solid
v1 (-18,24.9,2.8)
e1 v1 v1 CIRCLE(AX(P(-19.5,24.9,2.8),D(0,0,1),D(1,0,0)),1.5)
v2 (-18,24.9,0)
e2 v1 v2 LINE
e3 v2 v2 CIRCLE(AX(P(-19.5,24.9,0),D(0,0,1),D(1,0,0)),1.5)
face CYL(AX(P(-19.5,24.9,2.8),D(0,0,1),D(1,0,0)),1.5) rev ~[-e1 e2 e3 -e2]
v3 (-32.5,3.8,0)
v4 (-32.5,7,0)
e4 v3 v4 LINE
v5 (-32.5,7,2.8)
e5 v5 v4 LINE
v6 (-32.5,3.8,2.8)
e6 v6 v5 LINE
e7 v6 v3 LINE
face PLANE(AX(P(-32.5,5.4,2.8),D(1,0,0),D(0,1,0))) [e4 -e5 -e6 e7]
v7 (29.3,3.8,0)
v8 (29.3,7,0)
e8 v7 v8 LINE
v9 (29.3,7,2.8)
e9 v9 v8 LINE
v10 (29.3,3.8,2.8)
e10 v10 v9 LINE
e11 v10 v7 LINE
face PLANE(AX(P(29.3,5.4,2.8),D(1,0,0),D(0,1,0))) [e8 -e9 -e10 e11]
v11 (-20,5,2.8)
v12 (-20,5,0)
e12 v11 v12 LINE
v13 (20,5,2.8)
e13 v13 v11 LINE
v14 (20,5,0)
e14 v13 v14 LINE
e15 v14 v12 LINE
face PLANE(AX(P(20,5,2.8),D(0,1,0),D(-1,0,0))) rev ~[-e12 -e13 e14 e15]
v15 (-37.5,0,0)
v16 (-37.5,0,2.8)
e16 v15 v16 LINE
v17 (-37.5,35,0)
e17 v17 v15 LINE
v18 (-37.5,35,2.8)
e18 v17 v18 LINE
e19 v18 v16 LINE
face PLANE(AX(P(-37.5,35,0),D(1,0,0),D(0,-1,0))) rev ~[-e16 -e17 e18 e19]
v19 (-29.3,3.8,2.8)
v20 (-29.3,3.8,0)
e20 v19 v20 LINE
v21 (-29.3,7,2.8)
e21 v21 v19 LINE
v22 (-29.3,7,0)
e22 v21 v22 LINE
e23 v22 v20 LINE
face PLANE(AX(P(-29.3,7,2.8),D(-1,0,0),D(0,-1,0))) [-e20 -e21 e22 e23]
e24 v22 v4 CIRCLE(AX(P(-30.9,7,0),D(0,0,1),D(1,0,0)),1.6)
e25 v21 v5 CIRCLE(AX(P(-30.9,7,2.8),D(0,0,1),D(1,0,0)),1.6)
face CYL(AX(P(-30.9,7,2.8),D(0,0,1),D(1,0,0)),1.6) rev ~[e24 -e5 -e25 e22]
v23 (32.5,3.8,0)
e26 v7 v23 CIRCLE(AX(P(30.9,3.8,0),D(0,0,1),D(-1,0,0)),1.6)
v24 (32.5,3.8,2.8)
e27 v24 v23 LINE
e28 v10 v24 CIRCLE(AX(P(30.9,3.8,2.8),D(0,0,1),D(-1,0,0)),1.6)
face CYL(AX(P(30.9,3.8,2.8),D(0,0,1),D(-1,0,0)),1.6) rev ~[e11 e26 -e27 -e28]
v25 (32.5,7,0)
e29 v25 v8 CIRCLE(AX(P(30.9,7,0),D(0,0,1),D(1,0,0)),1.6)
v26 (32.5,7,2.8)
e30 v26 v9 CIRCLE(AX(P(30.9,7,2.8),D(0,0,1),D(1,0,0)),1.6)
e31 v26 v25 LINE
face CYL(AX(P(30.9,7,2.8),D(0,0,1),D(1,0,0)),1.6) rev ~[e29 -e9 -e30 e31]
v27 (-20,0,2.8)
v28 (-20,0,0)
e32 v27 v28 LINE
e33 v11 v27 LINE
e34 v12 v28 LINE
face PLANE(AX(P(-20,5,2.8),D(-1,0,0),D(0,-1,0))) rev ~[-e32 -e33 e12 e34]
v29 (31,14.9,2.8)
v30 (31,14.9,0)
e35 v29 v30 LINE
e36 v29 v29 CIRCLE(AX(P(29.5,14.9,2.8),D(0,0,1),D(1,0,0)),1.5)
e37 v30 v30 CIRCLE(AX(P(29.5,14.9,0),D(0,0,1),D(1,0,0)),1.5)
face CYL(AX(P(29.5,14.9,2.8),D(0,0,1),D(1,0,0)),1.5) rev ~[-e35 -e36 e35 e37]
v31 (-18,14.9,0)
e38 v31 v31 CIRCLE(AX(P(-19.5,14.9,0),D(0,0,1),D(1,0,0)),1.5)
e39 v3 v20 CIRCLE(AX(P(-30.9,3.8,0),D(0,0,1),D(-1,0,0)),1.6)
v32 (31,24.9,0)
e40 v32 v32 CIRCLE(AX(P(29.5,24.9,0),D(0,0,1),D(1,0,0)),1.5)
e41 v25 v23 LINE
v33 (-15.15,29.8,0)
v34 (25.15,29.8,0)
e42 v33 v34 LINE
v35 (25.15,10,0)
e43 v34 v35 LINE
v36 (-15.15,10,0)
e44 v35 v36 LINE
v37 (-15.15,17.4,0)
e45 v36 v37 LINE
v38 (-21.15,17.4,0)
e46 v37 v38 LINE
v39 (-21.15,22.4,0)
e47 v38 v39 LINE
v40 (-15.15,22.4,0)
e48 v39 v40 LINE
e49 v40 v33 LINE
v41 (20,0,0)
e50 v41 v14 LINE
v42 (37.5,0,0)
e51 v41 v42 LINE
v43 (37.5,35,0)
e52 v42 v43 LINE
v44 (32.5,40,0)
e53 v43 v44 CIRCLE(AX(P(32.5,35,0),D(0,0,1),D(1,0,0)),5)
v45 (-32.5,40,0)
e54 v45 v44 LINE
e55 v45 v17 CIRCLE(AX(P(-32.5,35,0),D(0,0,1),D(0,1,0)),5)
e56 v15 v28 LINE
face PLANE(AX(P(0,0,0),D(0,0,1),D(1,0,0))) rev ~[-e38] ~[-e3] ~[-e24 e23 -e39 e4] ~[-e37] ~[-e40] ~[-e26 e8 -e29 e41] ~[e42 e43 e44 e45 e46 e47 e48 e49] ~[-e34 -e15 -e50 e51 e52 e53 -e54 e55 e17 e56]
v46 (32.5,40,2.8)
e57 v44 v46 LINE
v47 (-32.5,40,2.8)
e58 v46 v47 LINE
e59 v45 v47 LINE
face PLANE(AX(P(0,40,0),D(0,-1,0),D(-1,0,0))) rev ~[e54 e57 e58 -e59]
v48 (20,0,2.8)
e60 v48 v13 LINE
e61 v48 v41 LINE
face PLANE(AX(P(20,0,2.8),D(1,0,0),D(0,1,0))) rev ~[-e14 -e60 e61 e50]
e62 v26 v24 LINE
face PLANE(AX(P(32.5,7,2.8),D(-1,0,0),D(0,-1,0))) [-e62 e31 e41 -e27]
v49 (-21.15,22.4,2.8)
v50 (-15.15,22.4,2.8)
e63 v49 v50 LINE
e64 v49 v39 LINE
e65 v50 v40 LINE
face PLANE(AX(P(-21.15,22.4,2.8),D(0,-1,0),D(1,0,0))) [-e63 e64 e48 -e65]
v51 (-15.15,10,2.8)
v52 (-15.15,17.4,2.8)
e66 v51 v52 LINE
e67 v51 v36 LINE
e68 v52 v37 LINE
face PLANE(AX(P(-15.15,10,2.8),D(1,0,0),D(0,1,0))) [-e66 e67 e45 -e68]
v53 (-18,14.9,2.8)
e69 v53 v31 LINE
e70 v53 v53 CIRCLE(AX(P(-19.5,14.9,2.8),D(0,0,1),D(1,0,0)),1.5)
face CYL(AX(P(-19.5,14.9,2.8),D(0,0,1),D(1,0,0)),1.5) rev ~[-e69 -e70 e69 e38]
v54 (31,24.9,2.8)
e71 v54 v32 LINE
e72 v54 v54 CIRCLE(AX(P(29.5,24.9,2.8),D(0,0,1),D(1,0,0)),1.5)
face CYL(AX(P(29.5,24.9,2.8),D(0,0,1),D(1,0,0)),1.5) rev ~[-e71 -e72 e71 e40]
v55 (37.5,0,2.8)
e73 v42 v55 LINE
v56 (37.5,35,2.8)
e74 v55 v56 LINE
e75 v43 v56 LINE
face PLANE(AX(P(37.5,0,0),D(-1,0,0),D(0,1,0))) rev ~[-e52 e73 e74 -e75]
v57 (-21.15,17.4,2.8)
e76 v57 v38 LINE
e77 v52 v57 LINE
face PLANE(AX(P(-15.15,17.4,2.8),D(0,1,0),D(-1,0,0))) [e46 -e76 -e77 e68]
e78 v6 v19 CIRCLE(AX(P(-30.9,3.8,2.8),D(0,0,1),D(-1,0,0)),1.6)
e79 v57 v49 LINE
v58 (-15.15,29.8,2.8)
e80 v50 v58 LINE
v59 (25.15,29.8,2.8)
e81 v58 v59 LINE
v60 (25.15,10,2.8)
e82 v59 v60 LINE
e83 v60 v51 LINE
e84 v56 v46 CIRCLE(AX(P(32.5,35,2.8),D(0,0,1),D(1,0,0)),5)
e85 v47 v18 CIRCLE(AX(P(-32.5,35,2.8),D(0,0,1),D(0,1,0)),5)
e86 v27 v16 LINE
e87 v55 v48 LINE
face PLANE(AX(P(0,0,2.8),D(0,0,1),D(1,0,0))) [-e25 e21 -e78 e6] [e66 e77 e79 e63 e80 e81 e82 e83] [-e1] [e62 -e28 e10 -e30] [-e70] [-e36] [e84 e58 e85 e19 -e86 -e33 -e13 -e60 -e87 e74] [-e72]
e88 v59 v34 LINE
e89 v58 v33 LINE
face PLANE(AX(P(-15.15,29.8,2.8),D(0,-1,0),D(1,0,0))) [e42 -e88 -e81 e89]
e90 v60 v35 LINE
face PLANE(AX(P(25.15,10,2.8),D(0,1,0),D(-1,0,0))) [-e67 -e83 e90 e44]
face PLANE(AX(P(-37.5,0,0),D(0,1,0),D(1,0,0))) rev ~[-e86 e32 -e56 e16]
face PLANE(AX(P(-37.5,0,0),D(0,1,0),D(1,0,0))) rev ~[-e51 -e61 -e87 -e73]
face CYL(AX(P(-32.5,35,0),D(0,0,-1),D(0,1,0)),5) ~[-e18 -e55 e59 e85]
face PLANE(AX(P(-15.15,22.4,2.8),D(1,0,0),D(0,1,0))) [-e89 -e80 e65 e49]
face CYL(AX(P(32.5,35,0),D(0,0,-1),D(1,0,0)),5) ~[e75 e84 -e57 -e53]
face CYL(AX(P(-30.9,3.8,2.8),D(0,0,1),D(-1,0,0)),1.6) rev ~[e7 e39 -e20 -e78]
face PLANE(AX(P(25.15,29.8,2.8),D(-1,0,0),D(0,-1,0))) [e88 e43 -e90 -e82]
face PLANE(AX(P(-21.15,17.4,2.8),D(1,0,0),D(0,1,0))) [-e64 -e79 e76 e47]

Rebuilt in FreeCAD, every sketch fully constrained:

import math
import FreeCAD as App
import Part
import Sketcher
Q = App.Units.Quantity

doc = App.newDocument("Part")
params = doc.addObject("Spreadsheet::Sheet", "Params")
for row, (alias, value) in enumerate([
    ("sketch1_radius", "5 mm"),
    ("sketch1_width", "75 mm"),
    ("pad1_length", "2.8 mm"),
    ("sketch2_width", "40 mm"),
    ("sketch2_width2", "6 mm"),
    ("sketch2_height", "5 mm"),
    ("sketch2_width3", "40.3 mm"),
    ("sketch2_height2", "7.4 mm"),
    ("pocket1_length", "10 mm"),
    ("sketch3_diameter", "3 mm"),
    ("sketch3_radius", "1.6 mm"),
    ("sketch3_height", "3.2 mm"),
], start=1):
    params.set(f"A{row}", alias)
    params.set(f"B{row}", "=" + value)
    params.setAlias(f"B{row}", alias)

body = doc.addObject("PartDesign::Body", "Body")

sketch1 = body.newObject("Sketcher::SketchObject", "Sketch")
sketch1.AttachmentSupport = (doc.getObject("XY_Plane"), [""])
sketch1.MapMode = "FlatFace"
sketch1.addGeometry(Part.LineSegment(App.Vector(-38, 35, 0), App.Vector(-38, 0, 0)), False)
sketch1.addGeometry(Part.LineSegment(App.Vector(-38, 0, 0), App.Vector(38, 0, 0)), False)
sketch1.addGeometry(Part.LineSegment(App.Vector(38, 0, 0), App.Vector(38, 35, 0)), False)
sketch1.addGeometry(Part.ArcOfCircle(Part.Circle(App.Vector(32, 35, 0), App.Vector(0, 0, 1), 5), math.radians(0), math.radians(90)), False)
sketch1.addGeometry(Part.LineSegment(App.Vector(32, 40, 0), App.Vector(-32, 40, 0)), False)
sketch1.addGeometry(Part.ArcOfCircle(Part.Circle(App.Vector(-32, 35, 0), App.Vector(0, 0, 1), 5), math.radians(90), math.radians(180)), False)
sketch1.addConstraint(Sketcher.Constraint("Coincident", 0, 2, 1, 1))
sketch1.addConstraint(Sketcher.Constraint("Coincident", 1, 2, 2, 1))
sketch1.addConstraint(Sketcher.Constraint("Tangent", 2, 2, 3, 1))
sketch1.addConstraint(Sketcher.Constraint("Tangent", 3, 2, 4, 1))
sketch1.addConstraint(Sketcher.Constraint("Tangent", 4, 2, 5, 1))
sketch1.addConstraint(Sketcher.Constraint("Tangent", 5, 2, 0, 1))
sketch1.addConstraint(Sketcher.Constraint("Vertical", 0))
sketch1.addConstraint(Sketcher.Constraint("Horizontal", 1))
sketch1.addConstraint(Sketcher.Constraint("Vertical", 2))
sketch1.addConstraint(Sketcher.Constraint("Horizontal", 4))
sketch1.addConstraint(Sketcher.Constraint("Equal", 3, 5))
sketch1.addConstraint(Sketcher.Constraint("Symmetric", 0, 2, 1, 2, -1, 1))
sketch1.addConstraint(Sketcher.Constraint("Radius", 3, Q("5 mm")))
sketch1.addConstraint(Sketcher.Constraint("DistanceX", 1, 1, 1, 2, Q("75 mm")))
sketch1.addConstraint(Sketcher.Constraint("DistanceY", -1, 1, 3, 2, Q("40 mm")))
sketch1.setExpression("Constraints[12]", "Params.sketch1_radius")
sketch1.setExpression("Constraints[13]", "Params.sketch1_width")
pad1 = body.newObject("PartDesign::Pad", "Pad")
pad1.Profile = sketch1
pad1.setExpression("Length", "Params.pad1_length")

sketch2 = body.newObject("Sketcher::SketchObject", "Sketch001")
sketch2.AttachmentSupport = (doc.getObject("XY_Plane"), [""])
sketch2.MapMode = "FlatFace"
sketch2.AttachmentOffset = App.Placement(App.Vector(0, 0, 2.8), App.Rotation())
sketch2.addGeometry(Part.LineSegment(App.Vector(-20, 0, 0), App.Vector(20, 0, 0)), False)
sketch2.addGeometry(Part.LineSegment(App.Vector(20, 0, 0), App.Vector(20, 5, 0)), False)
sketch2.addGeometry(Part.LineSegment(App.Vector(20, 5, 0), App.Vector(-20, 5, 0)), False)
sketch2.addGeometry(Part.LineSegment(App.Vector(-20, 5, 0), App.Vector(-20, 0, 0)), False)
sketch2.addGeometry(Part.LineSegment(App.Vector(-15, 30, 0), App.Vector(-15, 22, 0)), False)
sketch2.addGeometry(Part.LineSegment(App.Vector(-15, 22, 0), App.Vector(-21, 22, 0)), False)
sketch2.addGeometry(Part.LineSegment(App.Vector(-21, 22, 0), App.Vector(-21, 17, 0)), False)
sketch2.addGeometry(Part.LineSegment(App.Vector(-21, 17, 0), App.Vector(-15, 17, 0)), False)
sketch2.addGeometry(Part.LineSegment(App.Vector(-15, 17, 0), App.Vector(-15, 10, 0)), False)
sketch2.addGeometry(Part.LineSegment(App.Vector(-15, 10, 0), App.Vector(25, 10, 0)), False)
sketch2.addGeometry(Part.LineSegment(App.Vector(25, 10, 0), App.Vector(25, 30, 0)), False)
sketch2.addGeometry(Part.LineSegment(App.Vector(25, 30, 0), App.Vector(-15, 30, 0)), False)
sketch2.addConstraint(Sketcher.Constraint("Coincident", 0, 2, 1, 1))
sketch2.addConstraint(Sketcher.Constraint("Coincident", 1, 2, 2, 1))
sketch2.addConstraint(Sketcher.Constraint("Coincident", 2, 2, 3, 1))
sketch2.addConstraint(Sketcher.Constraint("Coincident", 3, 2, 0, 1))
sketch2.addConstraint(Sketcher.Constraint("Coincident", 4, 2, 5, 1))
sketch2.addConstraint(Sketcher.Constraint("Coincident", 5, 2, 6, 1))
sketch2.addConstraint(Sketcher.Constraint("Coincident", 6, 2, 7, 1))
sketch2.addConstraint(Sketcher.Constraint("Coincident", 7, 2, 8, 1))
sketch2.addConstraint(Sketcher.Constraint("Coincident", 8, 2, 9, 1))
sketch2.addConstraint(Sketcher.Constraint("Coincident", 9, 2, 10, 1))
sketch2.addConstraint(Sketcher.Constraint("Coincident", 10, 2, 11, 1))
sketch2.addConstraint(Sketcher.Constraint("Coincident", 11, 2, 4, 1))
sketch2.addConstraint(Sketcher.Constraint("Horizontal", 0))
sketch2.addConstraint(Sketcher.Constraint("Vertical", 1))
sketch2.addConstraint(Sketcher.Constraint("Horizontal", 2))
sketch2.addConstraint(Sketcher.Constraint("Vertical", 3))
sketch2.addConstraint(Sketcher.Constraint("Vertical", 4))
sketch2.addConstraint(Sketcher.Constraint("Horizontal", 5))
sketch2.addConstraint(Sketcher.Constraint("Vertical", 6))
sketch2.addConstraint(Sketcher.Constraint("Horizontal", 7))
sketch2.addConstraint(Sketcher.Constraint("Vertical", 8))
sketch2.addConstraint(Sketcher.Constraint("Horizontal", 9))
sketch2.addConstraint(Sketcher.Constraint("Vertical", 10))
sketch2.addConstraint(Sketcher.Constraint("Horizontal", 11))
sketch2.addConstraint(Sketcher.Constraint("Symmetric", 0, 2, 3, 2, -1, 1))
sketch2.addConstraint(Sketcher.Constraint("Vertical", 4, 2, 7, 2))
sketch2.addConstraint(Sketcher.Constraint("Equal", 3, 6))
sketch2.addConstraint(Sketcher.Constraint("Equal", 4, 8))
sketch2.addConstraint(Sketcher.Constraint("DistanceX", 0, 1, 0, 2, Q("40 mm")))
sketch2.addConstraint(Sketcher.Constraint("DistanceX", 5, 2, 5, 1, Q("6 mm")))
sketch2.addConstraint(Sketcher.Constraint("DistanceY", 1, 1, 1, 2, Q("5 mm")))
sketch2.addConstraint(Sketcher.Constraint("DistanceX", 9, 1, 9, 2, Q("40.3 mm")))
sketch2.addConstraint(Sketcher.Constraint("DistanceY", 4, 2, 4, 1, Q("7.4 mm")))
sketch2.addConstraint(Sketcher.Constraint("DistanceY", -1, 1, 8, 2, Q("10 mm")))
sketch2.addConstraint(Sketcher.Constraint("DistanceX", 4, 2, -1, 1, Q("15.15 mm")))
sketch2.setExpression("Constraints[28]", "Params.sketch2_width")
sketch2.setExpression("Constraints[29]", "Params.sketch2_width2")
sketch2.setExpression("Constraints[30]", "Params.sketch2_height")
sketch2.setExpression("Constraints[31]", "Params.sketch2_width3")
sketch2.setExpression("Constraints[32]", "Params.sketch2_height2")
pocket1 = body.newObject("PartDesign::Pocket", "Pocket")
pocket1.Profile = sketch2
pocket1.setExpression("Length", "Params.pocket1_length")

sketch3 = body.newObject("Sketcher::SketchObject", "Sketch002")
sketch3.AttachmentSupport = (doc.getObject("XY_Plane"), [""])
sketch3.MapMode = "FlatFace"
sketch3.AttachmentOffset = App.Placement(App.Vector(0, 0, 2.8), App.Rotation())
sketch3.addGeometry(Part.Circle(App.Vector(29.5, 14.9, 0), App.Vector(0, 0, 1), 1.5), False)
sketch3.addGeometry(Part.Circle(App.Vector(29.5, 24.9, 0), App.Vector(0, 0, 1), 1.5), False)
sketch3.addGeometry(Part.Circle(App.Vector(-19.5, 14.9, 0), App.Vector(0, 0, 1), 1.5), False)
sketch3.addGeometry(Part.Circle(App.Vector(-19.5, 24.9, 0), App.Vector(0, 0, 1), 1.5), False)
sketch3.addGeometry(Part.LineSegment(App.Vector(29.3, 7, 0), App.Vector(29.3, 3.8, 0)), False)
sketch3.addGeometry(Part.ArcOfCircle(Part.Circle(App.Vector(30.9, 3.8, 0), App.Vector(0, 0, 1), 1.6), math.radians(180), math.radians(360)), False)
sketch3.addGeometry(Part.LineSegment(App.Vector(32.5, 3.8, 0), App.Vector(32.5, 7, 0)), False)
sketch3.addGeometry(Part.ArcOfCircle(Part.Circle(App.Vector(30.9, 7, 0), App.Vector(0, 0, 1), 1.6), math.radians(0), math.radians(180)), False)
sketch3.addGeometry(Part.LineSegment(App.Vector(-32.5, 7, 0), App.Vector(-32.5, 3.8, 0)), False)
sketch3.addGeometry(Part.ArcOfCircle(Part.Circle(App.Vector(-30.9, 3.8, 0), App.Vector(0, 0, 1), 1.6), math.radians(180), math.radians(360)), False)
sketch3.addGeometry(Part.LineSegment(App.Vector(-29.3, 3.8, 0), App.Vector(-29.3, 7, 0)), False)
sketch3.addGeometry(Part.ArcOfCircle(Part.Circle(App.Vector(-30.9, 7, 0), App.Vector(0, 0, 1), 1.6), math.radians(0), math.radians(180)), False)
sketch3.addConstraint(Sketcher.Constraint("Tangent", 4, 2, 5, 1))
sketch3.addConstraint(Sketcher.Constraint("Tangent", 5, 2, 6, 1))
sketch3.addConstraint(Sketcher.Constraint("Tangent", 6, 2, 7, 1))
sketch3.addConstraint(Sketcher.Constraint("Tangent", 7, 2, 4, 1))
sketch3.addConstraint(Sketcher.Constraint("Tangent", 8, 2, 9, 1))
sketch3.addConstraint(Sketcher.Constraint("Tangent", 9, 2, 10, 1))
sketch3.addConstraint(Sketcher.Constraint("Tangent", 10, 2, 11, 1))
sketch3.addConstraint(Sketcher.Constraint("Tangent", 11, 2, 8, 1))
sketch3.addConstraint(Sketcher.Constraint("Vertical", 4))
sketch3.addConstraint(Sketcher.Constraint("Vertical", 6))
sketch3.addConstraint(Sketcher.Constraint("Vertical", 8))
sketch3.addConstraint(Sketcher.Constraint("Vertical", 10))
sketch3.addConstraint(Sketcher.Constraint("Equal", 0, 1))
sketch3.addConstraint(Sketcher.Constraint("Equal", 1, 2))
sketch3.addConstraint(Sketcher.Constraint("Equal", 2, 3))
sketch3.addConstraint(Sketcher.Constraint("Equal", 7, 9))
sketch3.addConstraint(Sketcher.Constraint("Symmetric", 5, 3, 9, 3, -2))
sketch3.addConstraint(Sketcher.Constraint("Horizontal", 0, 3, 2, 3))
sketch3.addConstraint(Sketcher.Constraint("Horizontal", 1, 3, 3, 3))
sketch3.addConstraint(Sketcher.Constraint("Horizontal", 7, 3, 11, 3))
sketch3.addConstraint(Sketcher.Constraint("Vertical", 0, 3, 1, 3))
sketch3.addConstraint(Sketcher.Constraint("Vertical", 2, 3, 3, 3))
sketch3.addConstraint(Sketcher.Constraint("Diameter", 0, Q("3 mm")))
sketch3.addConstraint(Sketcher.Constraint("DistanceX", 0, 3, 5, 2, Q("3 mm")))
sketch3.addConstraint(Sketcher.Constraint("Radius", 5, Q("1.6 mm")))
sketch3.addConstraint(Sketcher.Constraint("DistanceY", 4, 2, 4, 1, Q("3.2 mm")))
sketch3.addConstraint(Sketcher.Constraint("DistanceY", -1, 1, 7, 3, Q("7 mm")))
sketch3.addConstraint(Sketcher.Constraint("DistanceY", 0, 3, 1, 3, Q("10 mm")))
sketch3.addConstraint(Sketcher.Constraint("DistanceX", 2, 3, 0, 3, Q("49 mm")))
sketch3.addConstraint(Sketcher.Constraint("DistanceX", 8, 2, 2, 3, Q("13 mm")))
sketch3.addConstraint(Sketcher.Constraint("DistanceY", -1, 1, 0, 3, Q("14.9 mm")))
sketch3.setExpression("Constraints[22]", "Params.sketch3_diameter")
sketch3.setExpression("Constraints[24]", "Params.sketch3_radius")
sketch3.setExpression("Constraints[25]", "Params.sketch3_height")
pocket2 = body.newObject("PartDesign::Pocket", "Pocket001")
pocket2.Profile = sketch3
pocket2.Type = "ThroughAll"

doc.recompute()
